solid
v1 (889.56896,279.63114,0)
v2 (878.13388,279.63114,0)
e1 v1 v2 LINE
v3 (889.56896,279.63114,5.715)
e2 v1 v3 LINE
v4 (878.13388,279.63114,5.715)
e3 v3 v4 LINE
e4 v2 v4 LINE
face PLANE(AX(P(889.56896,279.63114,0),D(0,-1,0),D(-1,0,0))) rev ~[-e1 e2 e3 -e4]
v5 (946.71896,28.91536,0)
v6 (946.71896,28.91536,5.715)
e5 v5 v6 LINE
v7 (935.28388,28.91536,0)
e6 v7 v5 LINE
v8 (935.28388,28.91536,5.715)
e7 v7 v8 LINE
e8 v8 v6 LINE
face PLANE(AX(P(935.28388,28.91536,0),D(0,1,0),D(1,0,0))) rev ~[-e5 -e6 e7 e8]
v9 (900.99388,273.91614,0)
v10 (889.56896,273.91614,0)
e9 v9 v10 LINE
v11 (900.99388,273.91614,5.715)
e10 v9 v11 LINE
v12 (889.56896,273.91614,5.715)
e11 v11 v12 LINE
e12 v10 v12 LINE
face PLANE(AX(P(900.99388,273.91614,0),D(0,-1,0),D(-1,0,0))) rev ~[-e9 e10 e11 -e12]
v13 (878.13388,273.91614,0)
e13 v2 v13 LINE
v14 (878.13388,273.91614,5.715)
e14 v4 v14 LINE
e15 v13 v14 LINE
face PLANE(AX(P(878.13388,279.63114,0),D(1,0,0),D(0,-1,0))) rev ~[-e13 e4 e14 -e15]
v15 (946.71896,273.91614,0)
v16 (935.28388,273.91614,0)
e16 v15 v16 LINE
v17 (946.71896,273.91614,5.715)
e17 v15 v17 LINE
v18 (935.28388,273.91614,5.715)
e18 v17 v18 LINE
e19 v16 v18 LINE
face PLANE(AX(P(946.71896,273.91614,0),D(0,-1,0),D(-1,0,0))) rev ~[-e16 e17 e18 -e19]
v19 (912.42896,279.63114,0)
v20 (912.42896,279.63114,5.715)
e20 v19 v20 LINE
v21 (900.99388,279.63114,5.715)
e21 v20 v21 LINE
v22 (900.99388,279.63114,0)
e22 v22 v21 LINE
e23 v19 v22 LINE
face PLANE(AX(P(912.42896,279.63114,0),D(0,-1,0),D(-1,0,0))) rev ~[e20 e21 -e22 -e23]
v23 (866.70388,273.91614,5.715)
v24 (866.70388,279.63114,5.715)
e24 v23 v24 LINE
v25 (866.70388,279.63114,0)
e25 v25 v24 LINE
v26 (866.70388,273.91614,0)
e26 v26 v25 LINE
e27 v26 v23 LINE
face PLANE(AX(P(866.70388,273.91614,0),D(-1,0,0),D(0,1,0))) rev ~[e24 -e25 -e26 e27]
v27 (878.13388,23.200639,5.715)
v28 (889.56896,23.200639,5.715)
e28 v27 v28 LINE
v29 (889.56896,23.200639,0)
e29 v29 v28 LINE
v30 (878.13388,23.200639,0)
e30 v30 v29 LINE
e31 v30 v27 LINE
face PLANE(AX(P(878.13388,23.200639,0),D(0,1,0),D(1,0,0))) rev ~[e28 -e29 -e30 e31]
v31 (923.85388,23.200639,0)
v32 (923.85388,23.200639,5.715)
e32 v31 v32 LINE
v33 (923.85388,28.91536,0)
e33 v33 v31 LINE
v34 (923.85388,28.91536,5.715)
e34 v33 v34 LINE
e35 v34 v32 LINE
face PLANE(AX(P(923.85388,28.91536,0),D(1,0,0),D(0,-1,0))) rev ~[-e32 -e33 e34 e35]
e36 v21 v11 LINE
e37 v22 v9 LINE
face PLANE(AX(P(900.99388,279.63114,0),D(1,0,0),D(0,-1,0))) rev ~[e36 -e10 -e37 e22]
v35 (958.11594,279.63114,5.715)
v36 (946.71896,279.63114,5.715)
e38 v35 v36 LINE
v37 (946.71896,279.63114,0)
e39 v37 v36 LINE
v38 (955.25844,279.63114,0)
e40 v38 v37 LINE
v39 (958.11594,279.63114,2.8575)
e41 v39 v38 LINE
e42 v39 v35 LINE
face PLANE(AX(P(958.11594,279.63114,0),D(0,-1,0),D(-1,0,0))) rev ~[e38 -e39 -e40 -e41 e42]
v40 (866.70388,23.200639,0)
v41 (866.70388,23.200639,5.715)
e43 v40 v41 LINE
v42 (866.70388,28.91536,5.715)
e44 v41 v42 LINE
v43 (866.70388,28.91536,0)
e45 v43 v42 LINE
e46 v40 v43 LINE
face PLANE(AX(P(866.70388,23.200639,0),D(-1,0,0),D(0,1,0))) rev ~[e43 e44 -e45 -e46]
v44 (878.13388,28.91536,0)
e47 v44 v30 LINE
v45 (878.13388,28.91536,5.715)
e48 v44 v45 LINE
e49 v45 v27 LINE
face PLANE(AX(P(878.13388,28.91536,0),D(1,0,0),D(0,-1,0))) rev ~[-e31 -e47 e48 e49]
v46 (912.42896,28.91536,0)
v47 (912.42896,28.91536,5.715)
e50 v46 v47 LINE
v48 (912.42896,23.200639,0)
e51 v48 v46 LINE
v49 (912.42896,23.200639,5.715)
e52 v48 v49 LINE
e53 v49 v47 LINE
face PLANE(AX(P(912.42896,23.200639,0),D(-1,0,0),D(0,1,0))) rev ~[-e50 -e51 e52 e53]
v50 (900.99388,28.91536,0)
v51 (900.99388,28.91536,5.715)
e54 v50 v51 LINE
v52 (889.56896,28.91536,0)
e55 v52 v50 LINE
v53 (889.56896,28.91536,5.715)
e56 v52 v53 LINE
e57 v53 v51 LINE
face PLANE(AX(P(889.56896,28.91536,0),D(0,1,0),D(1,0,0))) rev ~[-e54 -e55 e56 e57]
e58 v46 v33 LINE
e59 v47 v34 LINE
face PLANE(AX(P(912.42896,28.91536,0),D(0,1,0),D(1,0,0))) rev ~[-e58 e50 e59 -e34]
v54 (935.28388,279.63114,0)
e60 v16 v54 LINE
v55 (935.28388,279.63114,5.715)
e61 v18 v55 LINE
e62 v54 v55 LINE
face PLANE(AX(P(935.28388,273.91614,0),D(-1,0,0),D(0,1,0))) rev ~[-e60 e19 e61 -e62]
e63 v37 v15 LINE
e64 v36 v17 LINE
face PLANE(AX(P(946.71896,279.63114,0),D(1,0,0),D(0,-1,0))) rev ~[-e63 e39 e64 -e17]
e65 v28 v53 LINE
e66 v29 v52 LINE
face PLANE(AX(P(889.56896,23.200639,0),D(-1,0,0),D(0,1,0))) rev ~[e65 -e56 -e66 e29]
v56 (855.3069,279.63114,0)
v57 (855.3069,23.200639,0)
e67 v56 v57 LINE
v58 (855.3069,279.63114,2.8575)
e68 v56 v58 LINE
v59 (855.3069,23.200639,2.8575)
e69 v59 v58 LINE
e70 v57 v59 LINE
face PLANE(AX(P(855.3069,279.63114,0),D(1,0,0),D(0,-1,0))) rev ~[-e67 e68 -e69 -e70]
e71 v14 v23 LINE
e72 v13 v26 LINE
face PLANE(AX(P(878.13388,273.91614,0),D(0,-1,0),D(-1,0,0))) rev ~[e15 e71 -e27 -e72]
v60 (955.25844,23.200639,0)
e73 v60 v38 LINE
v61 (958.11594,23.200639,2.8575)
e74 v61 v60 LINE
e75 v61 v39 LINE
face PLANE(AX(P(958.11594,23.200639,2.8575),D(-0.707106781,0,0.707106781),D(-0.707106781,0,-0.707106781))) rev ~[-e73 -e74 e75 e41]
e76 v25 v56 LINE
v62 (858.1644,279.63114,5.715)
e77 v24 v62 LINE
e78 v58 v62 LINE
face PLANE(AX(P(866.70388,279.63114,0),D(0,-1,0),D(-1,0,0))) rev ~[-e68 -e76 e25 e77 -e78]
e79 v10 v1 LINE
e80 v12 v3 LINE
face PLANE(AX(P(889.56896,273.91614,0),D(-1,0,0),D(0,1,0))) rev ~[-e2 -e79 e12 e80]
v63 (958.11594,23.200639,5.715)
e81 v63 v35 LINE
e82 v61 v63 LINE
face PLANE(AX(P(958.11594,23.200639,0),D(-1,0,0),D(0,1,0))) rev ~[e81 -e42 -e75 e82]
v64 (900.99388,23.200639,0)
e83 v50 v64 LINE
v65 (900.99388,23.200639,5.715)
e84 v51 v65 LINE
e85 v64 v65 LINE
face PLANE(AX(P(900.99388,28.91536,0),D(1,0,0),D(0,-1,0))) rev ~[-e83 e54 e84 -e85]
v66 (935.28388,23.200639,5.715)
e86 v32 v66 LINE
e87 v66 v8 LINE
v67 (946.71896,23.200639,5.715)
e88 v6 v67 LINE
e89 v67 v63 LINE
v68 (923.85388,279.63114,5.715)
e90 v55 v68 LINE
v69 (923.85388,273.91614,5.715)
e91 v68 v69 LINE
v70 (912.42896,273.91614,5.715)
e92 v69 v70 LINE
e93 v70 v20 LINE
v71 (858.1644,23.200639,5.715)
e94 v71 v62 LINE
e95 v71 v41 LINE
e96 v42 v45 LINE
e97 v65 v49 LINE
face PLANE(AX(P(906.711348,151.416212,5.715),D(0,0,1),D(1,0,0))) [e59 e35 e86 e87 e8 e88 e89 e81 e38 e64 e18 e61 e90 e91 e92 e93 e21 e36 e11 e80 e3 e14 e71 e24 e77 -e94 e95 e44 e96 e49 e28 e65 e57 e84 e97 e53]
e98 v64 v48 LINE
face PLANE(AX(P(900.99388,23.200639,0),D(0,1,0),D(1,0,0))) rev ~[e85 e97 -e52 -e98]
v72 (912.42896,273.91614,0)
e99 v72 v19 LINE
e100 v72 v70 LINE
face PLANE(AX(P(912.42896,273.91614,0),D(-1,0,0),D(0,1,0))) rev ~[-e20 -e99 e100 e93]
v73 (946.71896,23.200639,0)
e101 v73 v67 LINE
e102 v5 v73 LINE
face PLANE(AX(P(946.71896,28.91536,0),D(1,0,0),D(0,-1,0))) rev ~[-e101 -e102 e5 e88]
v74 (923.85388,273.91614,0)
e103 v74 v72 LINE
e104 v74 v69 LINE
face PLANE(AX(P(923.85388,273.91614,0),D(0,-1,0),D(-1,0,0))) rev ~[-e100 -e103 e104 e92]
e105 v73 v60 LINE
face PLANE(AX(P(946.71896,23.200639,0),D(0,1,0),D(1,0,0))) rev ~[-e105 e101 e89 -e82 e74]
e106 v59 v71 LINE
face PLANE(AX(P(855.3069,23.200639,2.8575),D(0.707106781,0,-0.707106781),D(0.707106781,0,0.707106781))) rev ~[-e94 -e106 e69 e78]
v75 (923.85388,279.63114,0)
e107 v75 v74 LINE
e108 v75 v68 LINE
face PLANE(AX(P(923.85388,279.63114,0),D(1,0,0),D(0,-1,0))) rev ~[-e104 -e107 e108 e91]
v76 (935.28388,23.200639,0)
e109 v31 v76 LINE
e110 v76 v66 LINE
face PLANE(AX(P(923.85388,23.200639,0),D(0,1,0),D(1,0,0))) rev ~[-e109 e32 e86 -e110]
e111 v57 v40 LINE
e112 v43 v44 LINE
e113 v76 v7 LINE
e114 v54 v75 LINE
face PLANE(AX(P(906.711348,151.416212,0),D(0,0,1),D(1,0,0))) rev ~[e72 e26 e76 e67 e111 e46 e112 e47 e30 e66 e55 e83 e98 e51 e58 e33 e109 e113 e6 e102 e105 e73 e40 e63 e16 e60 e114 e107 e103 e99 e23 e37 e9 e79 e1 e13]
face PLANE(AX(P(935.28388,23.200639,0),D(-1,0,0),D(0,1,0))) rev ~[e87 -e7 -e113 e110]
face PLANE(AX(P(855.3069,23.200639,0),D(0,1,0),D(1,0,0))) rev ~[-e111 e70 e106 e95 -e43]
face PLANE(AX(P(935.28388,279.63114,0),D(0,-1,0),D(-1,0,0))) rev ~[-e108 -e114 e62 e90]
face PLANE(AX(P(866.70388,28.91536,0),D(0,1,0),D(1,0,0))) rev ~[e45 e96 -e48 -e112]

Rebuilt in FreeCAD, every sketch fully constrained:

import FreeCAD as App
import Part
import Sketcher
from FreeCAD import Vector
Q = App.Units.Quantity


def add_polygon(sketch, points):
    """Adds a closed chain of lines whose ends are joined by coincident constraints."""
    first, n = sketch.GeometryCount, len(points)
    for a, b in zip(points, points[1:] + points[:1]):
        sketch.addGeometry(Part.LineSegment(App.Vector(*a, 0), App.Vector(*b, 0)), False)
    for i in range(n):
        sketch.addConstraint(Sketcher.Constraint("Coincident", first + i, 2, first + (i + 1) % n, 1))

doc = App.newDocument("Part")
params = doc.addObject("Spreadsheet::Sheet", "Params")
for row, (alias, value) in enumerate([
    ("sketch1_width", "0.45 in"),
    ("sketch1_height", "0.225 in"),
    ("pad1_length", "0.225 in"),
], start=1):
    params.set(f"A{row}", alias)
    params.set(f"B{row}", "=" + value)
    params.setAlias(f"B{row}", alias)

body = doc.addObject("PartDesign::Body", "Body")

# Sketch on XY plane
sketch1 = body.newObject("Sketcher::SketchObject", "Sketch")
sketch1.AttachmentSupport = (doc.getObject("XY_Plane"), [""])
sketch1.MapMode = "FlatFace"
add_polygon(sketch1, [(866.70388, 23.200639), (866.70388, 28.91536), (878.13388, 28.91536), (878.13388, 23.200639), (889.56896, 23.200639), (889.56896, 28.91536), (900.99388, 28.91536), (900.99388, 23.200639), (912.42896, 23.200639), (912.42896, 28.91536), (923.85388, 28.91536), (923.85388, 23.200639), (935.28388, 23.200639), (935.28388, 28.91536), (946.71896, 28.91536), (946.71896, 23.200639), (958.11594, 23.200639), (958.11594, 279.63114), (946.71896, 279.63114), (946.71896, 273.91614), (935.28388, 273.91614), (935.28388, 279.63114), (923.85388, 279.63114), (923.85388, 273.91614), (912.42896, 273.91614), (912.42896, 279.63114), (900.99388, 279.63114), (900.99388, 273.91614), (889.56896, 273.91614), (889.56896, 279.63114), (878.13388, 279.63114), (878.13388, 273.91614), (866.70388, 273.91614), (866.70388, 279.63114), (855.3069, 279.63114), (855.3069, 23.200639)])  # lines 0-35
sketch1.addConstraint([
    Sketcher.Constraint("Vertical", 0),
    Sketcher.Constraint("Horizontal", 1),
    Sketcher.Constraint("Vertical", 2),
    Sketcher.Constraint("Horizontal", 3),
    Sketcher.Constraint("Vertical", 4),
    Sketcher.Constraint("Horizontal", 5),
    Sketcher.Constraint("Vertical", 6),
    Sketcher.Constraint("Horizontal", 7),
    Sketcher.Constraint("Vertical", 8),
    Sketcher.Constraint("Horizontal", 9),
    Sketcher.Constraint("Vertical", 10),
    Sketcher.Constraint("Horizontal", 11),
    Sketcher.Constraint("Vertical", 12),
    Sketcher.Constraint("Horizontal", 13),
    Sketcher.Constraint("Vertical", 14),
    Sketcher.Constraint("Horizontal", 15),
    Sketcher.Constraint("Vertical", 16),
    Sketcher.Constraint("Horizontal", 17),
    Sketcher.Constraint("Vertical", 18),
    Sketcher.Constraint("Horizontal", 19),
    Sketcher.Constraint("Vertical", 20),
    Sketcher.Constraint("Horizontal", 21),
    Sketcher.Constraint("Vertical", 22),
    Sketcher.Constraint("Horizontal", 23),
    Sketcher.Constraint("Vertical", 24),
    Sketcher.Constraint("Horizontal", 25),
    Sketcher.Constraint("Vertical", 26),
    Sketcher.Constraint("Horizontal", 27),
    Sketcher.Constraint("Vertical", 28),
    Sketcher.Constraint("Horizontal", 29),
    Sketcher.Constraint("Vertical", 30),
    Sketcher.Constraint("Horizontal", 31),
    Sketcher.Constraint("Vertical", 32),
    Sketcher.Constraint("Horizontal", 33),
    Sketcher.Constraint("Vertical", 34),
    Sketcher.Constraint("Horizontal", 35),
    Sketcher.Constraint("Horizontal", 1, 2, 4, 2),
    Sketcher.Constraint("Horizontal", 3, 2, 6, 2),
    Sketcher.Constraint("Horizontal", 5, 2, 8, 2),
    Sketcher.Constraint("Horizontal", 7, 2, 10, 2),
    Sketcher.Constraint("Horizontal", 9, 2, 12, 2),
    Sketcher.Constraint("Horizontal", 11, 2, 14, 2),
    Sketcher.Constraint("Horizontal", 17, 2, 20, 2),
    Sketcher.Constraint("Horizontal", 19, 2, 22, 2),
    Sketcher.Constraint("Horizontal", 21, 2, 24, 2),
    Sketcher.Constraint("Horizontal", 23, 2, 26, 2),
    Sketcher.Constraint("Horizontal", 25, 2, 28, 2),
    Sketcher.Constraint("Horizontal", 27, 2, 30, 2),
    Sketcher.Constraint("Horizontal", 29, 2, 32, 2),
    Sketcher.Constraint("Horizontal", 15, 2, 34, 2),
    Sketcher.Constraint("Vertical", 14, 2, 17, 2),
    Sketcher.Constraint("Vertical", 12, 2, 19, 2),
    Sketcher.Constraint("Vertical", 10, 2, 21, 2),
    Sketcher.Constraint("Vertical", 8, 2, 23, 2),
    Sketcher.Constraint("Vertical", 6, 2, 25, 2),
    Sketcher.Constraint("Vertical", 4, 2, 27, 2),
    Sketcher.Constraint("Vertical", 2, 2, 29, 2),
    Sketcher.Constraint("Vertical", 0, 2, 31, 2),
    Sketcher.Constraint("Equal", 3, 7),
    Sketcher.Constraint("Equal", 5, 9),
    Sketcher.Constraint("Equal", 1, 11),
    Sketcher.Constraint("Equal", 7, 13),
    Sketcher.Constraint("Equal", 17, 33),
    Sketcher.Constraint("DistanceX", 1, 1, 1, 2, Q("0.45 in")),
    Sketcher.Constraint("DistanceX", 1, 2, 5, 2, Q("0.9 in")),
    Sketcher.Constraint("DistanceY", 18, 2, 18, 1, Q("0.225 in")),
    Sketcher.Constraint("DistanceX", 3, 1, 3, 2, Q("0.4502 in")),
    Sketcher.Constraint("DistanceX", 15, 1, 15, 2, Q("0.4487 in")),
    Sketcher.Constraint("DistanceY", 16, 1, 16, 2, 256.430501),
    Sketcher.Constraint("DistanceX", -1, 1, 0, 2, Q("34.1222 in")),
    Sketcher.Constraint("DistanceY", -1, 1, 0, 2, Q("1.1384 in")),
    Sketcher.Constraint("DistanceY", -1, 1, 16, 2, Q("11.0091 in")),
])
sketch1.setExpression("Constraints[99]", "Params.sketch1_width")
sketch1.setExpression("Constraints[101]", "Params.sketch1_height")
pad1 = body.newObject("PartDesign::Pad", "Pad")
pad1.Profile = sketch1
pad1.setExpression("Length", "Params.pad1_length")

# Sketch on XZ plane
sketch2 = body.newObject("Sketcher::SketchObject", "Sketch001")
sketch2.AttachmentSupport = (doc.getObject("XZ_Plane"), [""])
sketch2.MapMode = "FlatFace"
sketch2.AttachmentOffset = App.Placement(Vector(0, 0, -23.200639), App.Rotation())
add_polygon(sketch2, [(855.3069, 2.8575), (858.1644, 5.715), (855.3069, 5.715)])  # lines 0-2
add_polygon(sketch2, [(958.11594, 2.8575), (955.25844, 0), (958.11594, 0)])  # lines 3-5
sketch2.addConstraint([
    Sketcher.Constraint("Horizontal", 1),
    Sketcher.Constraint("Vertical", 2),
    Sketcher.Constraint("Horizontal", 4),
    Sketcher.Constraint("Vertical", 5),
    Sketcher.Constraint("PointOnObject", 3, 2, -1),
    Sketcher.Constraint("Parallel", 0, 3),
    Sketcher.Constraint("Horizontal", 2, 2, 5, 2),
    Sketcher.Constraint("Equal", 1, 4),
    Sketcher.Constraint("Equal", 4, 2),
    Sketcher.Constraint("DistanceX", 1, 2, 1, 1, Q("0.1125 in")),
    Sketcher.Constraint("DistanceX", -1, 1, 0, 2, Q("33.786 in")),
    Sketcher.Constraint("DistanceX", -1, 1, 3, 2, Q("37.6086 in")),
])
pocket1 = body.newObject("PartDesign::Pocket", "Pocket")
pocket1.Profile = sketch2
pocket1.Type = "ThroughAll"

doc.recompute()
